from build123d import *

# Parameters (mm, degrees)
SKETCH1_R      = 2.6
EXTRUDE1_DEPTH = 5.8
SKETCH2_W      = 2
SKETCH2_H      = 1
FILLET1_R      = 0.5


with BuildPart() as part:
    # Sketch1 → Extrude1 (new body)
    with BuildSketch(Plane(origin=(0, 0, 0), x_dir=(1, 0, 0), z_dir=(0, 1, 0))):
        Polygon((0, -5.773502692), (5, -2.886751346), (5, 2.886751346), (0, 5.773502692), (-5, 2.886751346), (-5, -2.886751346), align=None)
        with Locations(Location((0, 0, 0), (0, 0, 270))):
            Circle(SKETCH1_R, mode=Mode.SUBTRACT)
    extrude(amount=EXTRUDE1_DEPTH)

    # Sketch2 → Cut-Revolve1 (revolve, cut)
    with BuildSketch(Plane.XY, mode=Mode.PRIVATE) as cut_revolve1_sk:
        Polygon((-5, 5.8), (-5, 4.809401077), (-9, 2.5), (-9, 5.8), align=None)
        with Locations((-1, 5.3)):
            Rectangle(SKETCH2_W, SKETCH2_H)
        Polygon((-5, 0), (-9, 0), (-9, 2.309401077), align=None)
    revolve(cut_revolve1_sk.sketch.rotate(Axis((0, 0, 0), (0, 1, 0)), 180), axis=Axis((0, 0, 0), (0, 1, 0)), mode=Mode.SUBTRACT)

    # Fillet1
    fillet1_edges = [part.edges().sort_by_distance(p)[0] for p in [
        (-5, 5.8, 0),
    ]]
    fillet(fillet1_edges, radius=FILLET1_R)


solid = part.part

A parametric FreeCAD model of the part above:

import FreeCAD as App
import Part
import Sketcher
from FreeCAD import Vector
Q = App.Units.Quantity


def edges_at(feature, points):
    """Names of the edges that pass closest to the given points."""
    edges = feature.Shape.Edges
    near = lambda p: min(range(len(edges)), key=lambda i: edges[i].distToShape(Part.Vertex(*p))[0])
    return sorted({f"Edge{near(p) + 1}" for p in points})


def add_polygon(sketch, points):
    """Adds a closed chain of lines whose ends are joined by coincident constraints."""
    first, n = sketch.GeometryCount, len(points)
    for a, b in zip(points, points[1:] + points[:1]):
        sketch.addGeometry(Part.LineSegment(App.Vector(*a, 0), App.Vector(*b, 0)), False)
    for i in range(n):
        sketch.addConstraint(Sketcher.Constraint("Coincident", first + i, 2, first + (i + 1) % n, 1))

doc = App.newDocument("Part")
params = doc.addObject("Spreadsheet::Sheet", "Params")
for row, (alias, value) in enumerate([
    ("sketch1_diameter", "5.2 mm"),
    ("pad1_length", "5.8 mm"),
    ("sketch2_width", "4 mm"),
    ("sketch2_width2", "2 mm"),
    ("sketch2_height", "1 mm"),
    ("sketch2_height2", "3.3 mm"),
    ("groove_angle", "360 deg"),
    ("fillet_radius", "0.5 mm"),
], start=1):
    params.set(f"A{row}", alias)
    params.set(f"B{row}", "=" + value)
    params.setAlias(f"B{row}", alias)

body = doc.addObject("PartDesign::Body", "Body")

# Sketch on XZ plane
sketch1 = body.newObject("Sketcher::SketchObject", "Sketch")
sketch1.AttachmentSupport = (doc.getObject("XZ_Plane"), [""])
sketch1.MapMode = "FlatFace"
add_polygon(sketch1, [(0, 5.8), (5, 2.9), (5, -2.9), (0, -5.8), (-5, -2.9), (-5, 2.9)])  # lines 0-5
sketch1.addGeometry(Part.Circle(Vector(0, 0, 0), Vector(0, 0, 1), 2.6), False)  # 6
sketch1.addConstraint(Sketcher.Constraint("Vertical", 1))
sketch1.addConstraint(Sketcher.Constraint("Vertical", 4))
sketch1.addConstraint(Sketcher.Constraint("Coincident", 6, 3, -1, 1))
sketch1.addConstraint(Sketcher.Constraint("Symmetric", 0, 2, 3, 2, -1, 1))
sketch1.addConstraint(Sketcher.Constraint("Symmetric", 2, 2, 5, 2, -1, 1))
sketch1.addConstraint(Sketcher.Constraint("PointOnObject", 2, 2, -2))
sketch1.addConstraint(Sketcher.Constraint("Parallel", 2, 5))
sketch1.addConstraint(Sketcher.Constraint("Horizontal", 1, 2, 3, 2))
sketch1.addConstraint(Sketcher.Constraint("Diameter", 6, Q("5.2 mm")))
sketch1.addConstraint(Sketcher.Constraint("Angle", 0, Q("-30 deg")))
sketch1.addConstraint(Sketcher.Constraint("DistanceX", -1, 1, 0, 2, Q("5 mm")))
sketch1.addConstraint(Sketcher.Constraint("DistanceY", 1, 2, 1, 1, Q("5.773503 mm")))
sketch1.setExpression("Constraints[14]", "Params.sketch1_diameter")
pad1 = body.newObject("PartDesign::Pad", "Pad")
pad1.Profile = sketch1
pad1.setExpression("Length", "Params.pad1_length")
pad1.Reversed = True

# Sketch on XY plane
sketch2 = body.newObject("Sketcher::SketchObject", "Sketch001")
sketch2.AttachmentSupport = (doc.getObject("XY_Plane"), [""])
sketch2.MapMode = "FlatFace"
add_polygon(sketch2, [(-5, 4.8), (-5, 5.8), (-9, 5.8), (-9, 2.5)])  # lines 0-3
add_polygon(sketch2, [(-2, 5.8), (-2, 4.8), (0, 4.8), (0, 5.8)])  # lines 4-7
add_polygon(sketch2, [(-9, 0), (-5, 0), (-9, 2.3)])  # lines 8-10
sketch2.addConstraint(Sketcher.Constraint("Vertical", 0))
sketch2.addConstraint(Sketcher.Constraint("Horizontal", 1))
sketch2.addConstraint(Sketcher.Constraint("Vertical", 2))
sketch2.addConstraint(Sketcher.Constraint("Vertical", 4))
sketch2.addConstraint(Sketcher.Constraint("Horizontal", 5))
sketch2.addConstraint(Sketcher.Constraint("Vertical", 6))
sketch2.addConstraint(Sketcher.Constraint("Horizontal", 7))
sketch2.addConstraint(Sketcher.Constraint("Horizontal", 8))
sketch2.addConstraint(Sketcher.Constraint("Vertical", 10))
sketch2.addConstraint(Sketcher.Constraint("PointOnObject", 5, 2, -2))
sketch2.addConstraint(Sketcher.Constraint("PointOnObject", 8, 2, -1))
sketch2.addConstraint(Sketcher.Constraint("Horizontal", 1, 2, 6, 2))
sketch2.addConstraint(Sketcher.Constraint("Vertical", 3, 2, 8, 2))
sketch2.addConstraint(Sketcher.Constraint("Vertical", 2, 2, 9, 2))
sketch2.addConstraint(Sketcher.Constraint("Equal", 3, 9))
sketch2.addConstraint(Sketcher.Constraint("DistanceX", 1, 2, 1, 1, Q("4 mm")))
sketch2.addConstraint(Sketcher.Constraint("DistanceX", 5, 1, 5, 2, Q("2 mm")))
sketch2.addConstraint(Sketcher.Constraint("DistanceY", 4, 2, 4, 1, Q("1 mm")))
sketch2.addConstraint(Sketcher.Constraint("Angle", 3, Q("30 deg")))
sketch2.addConstraint(Sketcher.Constraint("DistanceY", 2, 2, 2, 1, Q("3.3 mm")))
sketch2.addConstraint(Sketcher.Constraint("DistanceX", 0, 2, -1, 1, Q("5 mm")))
sketch2.addConstraint(Sketcher.Constraint("DistanceY", -1, 1, 0, 2, Q("5.8 mm")))
sketch2.setExpression("Constraints[26]", "Params.sketch2_width")
sketch2.setExpression("Constraints[27]", "Params.sketch2_width2")
sketch2.setExpression("Constraints[28]", "Params.sketch2_height")
sketch2.setExpression("Constraints[30]", "Params.sketch2_height2")
groove = body.newObject("PartDesign::Groove", "Groove")
groove.Profile = sketch2
groove.ReferenceAxis = (sketch2, ["V_Axis"])
groove.setExpression("Angle", "Params.groove_angle")
doc.recompute()

fillet = body.newObject("PartDesign::Fillet", "Fillet")
fillet.Base = (groove, edges_at(groove, [(-5, 5.8, 0)]))
fillet.setExpression("Radius", "Params.fillet_radius")

doc.recompute()
